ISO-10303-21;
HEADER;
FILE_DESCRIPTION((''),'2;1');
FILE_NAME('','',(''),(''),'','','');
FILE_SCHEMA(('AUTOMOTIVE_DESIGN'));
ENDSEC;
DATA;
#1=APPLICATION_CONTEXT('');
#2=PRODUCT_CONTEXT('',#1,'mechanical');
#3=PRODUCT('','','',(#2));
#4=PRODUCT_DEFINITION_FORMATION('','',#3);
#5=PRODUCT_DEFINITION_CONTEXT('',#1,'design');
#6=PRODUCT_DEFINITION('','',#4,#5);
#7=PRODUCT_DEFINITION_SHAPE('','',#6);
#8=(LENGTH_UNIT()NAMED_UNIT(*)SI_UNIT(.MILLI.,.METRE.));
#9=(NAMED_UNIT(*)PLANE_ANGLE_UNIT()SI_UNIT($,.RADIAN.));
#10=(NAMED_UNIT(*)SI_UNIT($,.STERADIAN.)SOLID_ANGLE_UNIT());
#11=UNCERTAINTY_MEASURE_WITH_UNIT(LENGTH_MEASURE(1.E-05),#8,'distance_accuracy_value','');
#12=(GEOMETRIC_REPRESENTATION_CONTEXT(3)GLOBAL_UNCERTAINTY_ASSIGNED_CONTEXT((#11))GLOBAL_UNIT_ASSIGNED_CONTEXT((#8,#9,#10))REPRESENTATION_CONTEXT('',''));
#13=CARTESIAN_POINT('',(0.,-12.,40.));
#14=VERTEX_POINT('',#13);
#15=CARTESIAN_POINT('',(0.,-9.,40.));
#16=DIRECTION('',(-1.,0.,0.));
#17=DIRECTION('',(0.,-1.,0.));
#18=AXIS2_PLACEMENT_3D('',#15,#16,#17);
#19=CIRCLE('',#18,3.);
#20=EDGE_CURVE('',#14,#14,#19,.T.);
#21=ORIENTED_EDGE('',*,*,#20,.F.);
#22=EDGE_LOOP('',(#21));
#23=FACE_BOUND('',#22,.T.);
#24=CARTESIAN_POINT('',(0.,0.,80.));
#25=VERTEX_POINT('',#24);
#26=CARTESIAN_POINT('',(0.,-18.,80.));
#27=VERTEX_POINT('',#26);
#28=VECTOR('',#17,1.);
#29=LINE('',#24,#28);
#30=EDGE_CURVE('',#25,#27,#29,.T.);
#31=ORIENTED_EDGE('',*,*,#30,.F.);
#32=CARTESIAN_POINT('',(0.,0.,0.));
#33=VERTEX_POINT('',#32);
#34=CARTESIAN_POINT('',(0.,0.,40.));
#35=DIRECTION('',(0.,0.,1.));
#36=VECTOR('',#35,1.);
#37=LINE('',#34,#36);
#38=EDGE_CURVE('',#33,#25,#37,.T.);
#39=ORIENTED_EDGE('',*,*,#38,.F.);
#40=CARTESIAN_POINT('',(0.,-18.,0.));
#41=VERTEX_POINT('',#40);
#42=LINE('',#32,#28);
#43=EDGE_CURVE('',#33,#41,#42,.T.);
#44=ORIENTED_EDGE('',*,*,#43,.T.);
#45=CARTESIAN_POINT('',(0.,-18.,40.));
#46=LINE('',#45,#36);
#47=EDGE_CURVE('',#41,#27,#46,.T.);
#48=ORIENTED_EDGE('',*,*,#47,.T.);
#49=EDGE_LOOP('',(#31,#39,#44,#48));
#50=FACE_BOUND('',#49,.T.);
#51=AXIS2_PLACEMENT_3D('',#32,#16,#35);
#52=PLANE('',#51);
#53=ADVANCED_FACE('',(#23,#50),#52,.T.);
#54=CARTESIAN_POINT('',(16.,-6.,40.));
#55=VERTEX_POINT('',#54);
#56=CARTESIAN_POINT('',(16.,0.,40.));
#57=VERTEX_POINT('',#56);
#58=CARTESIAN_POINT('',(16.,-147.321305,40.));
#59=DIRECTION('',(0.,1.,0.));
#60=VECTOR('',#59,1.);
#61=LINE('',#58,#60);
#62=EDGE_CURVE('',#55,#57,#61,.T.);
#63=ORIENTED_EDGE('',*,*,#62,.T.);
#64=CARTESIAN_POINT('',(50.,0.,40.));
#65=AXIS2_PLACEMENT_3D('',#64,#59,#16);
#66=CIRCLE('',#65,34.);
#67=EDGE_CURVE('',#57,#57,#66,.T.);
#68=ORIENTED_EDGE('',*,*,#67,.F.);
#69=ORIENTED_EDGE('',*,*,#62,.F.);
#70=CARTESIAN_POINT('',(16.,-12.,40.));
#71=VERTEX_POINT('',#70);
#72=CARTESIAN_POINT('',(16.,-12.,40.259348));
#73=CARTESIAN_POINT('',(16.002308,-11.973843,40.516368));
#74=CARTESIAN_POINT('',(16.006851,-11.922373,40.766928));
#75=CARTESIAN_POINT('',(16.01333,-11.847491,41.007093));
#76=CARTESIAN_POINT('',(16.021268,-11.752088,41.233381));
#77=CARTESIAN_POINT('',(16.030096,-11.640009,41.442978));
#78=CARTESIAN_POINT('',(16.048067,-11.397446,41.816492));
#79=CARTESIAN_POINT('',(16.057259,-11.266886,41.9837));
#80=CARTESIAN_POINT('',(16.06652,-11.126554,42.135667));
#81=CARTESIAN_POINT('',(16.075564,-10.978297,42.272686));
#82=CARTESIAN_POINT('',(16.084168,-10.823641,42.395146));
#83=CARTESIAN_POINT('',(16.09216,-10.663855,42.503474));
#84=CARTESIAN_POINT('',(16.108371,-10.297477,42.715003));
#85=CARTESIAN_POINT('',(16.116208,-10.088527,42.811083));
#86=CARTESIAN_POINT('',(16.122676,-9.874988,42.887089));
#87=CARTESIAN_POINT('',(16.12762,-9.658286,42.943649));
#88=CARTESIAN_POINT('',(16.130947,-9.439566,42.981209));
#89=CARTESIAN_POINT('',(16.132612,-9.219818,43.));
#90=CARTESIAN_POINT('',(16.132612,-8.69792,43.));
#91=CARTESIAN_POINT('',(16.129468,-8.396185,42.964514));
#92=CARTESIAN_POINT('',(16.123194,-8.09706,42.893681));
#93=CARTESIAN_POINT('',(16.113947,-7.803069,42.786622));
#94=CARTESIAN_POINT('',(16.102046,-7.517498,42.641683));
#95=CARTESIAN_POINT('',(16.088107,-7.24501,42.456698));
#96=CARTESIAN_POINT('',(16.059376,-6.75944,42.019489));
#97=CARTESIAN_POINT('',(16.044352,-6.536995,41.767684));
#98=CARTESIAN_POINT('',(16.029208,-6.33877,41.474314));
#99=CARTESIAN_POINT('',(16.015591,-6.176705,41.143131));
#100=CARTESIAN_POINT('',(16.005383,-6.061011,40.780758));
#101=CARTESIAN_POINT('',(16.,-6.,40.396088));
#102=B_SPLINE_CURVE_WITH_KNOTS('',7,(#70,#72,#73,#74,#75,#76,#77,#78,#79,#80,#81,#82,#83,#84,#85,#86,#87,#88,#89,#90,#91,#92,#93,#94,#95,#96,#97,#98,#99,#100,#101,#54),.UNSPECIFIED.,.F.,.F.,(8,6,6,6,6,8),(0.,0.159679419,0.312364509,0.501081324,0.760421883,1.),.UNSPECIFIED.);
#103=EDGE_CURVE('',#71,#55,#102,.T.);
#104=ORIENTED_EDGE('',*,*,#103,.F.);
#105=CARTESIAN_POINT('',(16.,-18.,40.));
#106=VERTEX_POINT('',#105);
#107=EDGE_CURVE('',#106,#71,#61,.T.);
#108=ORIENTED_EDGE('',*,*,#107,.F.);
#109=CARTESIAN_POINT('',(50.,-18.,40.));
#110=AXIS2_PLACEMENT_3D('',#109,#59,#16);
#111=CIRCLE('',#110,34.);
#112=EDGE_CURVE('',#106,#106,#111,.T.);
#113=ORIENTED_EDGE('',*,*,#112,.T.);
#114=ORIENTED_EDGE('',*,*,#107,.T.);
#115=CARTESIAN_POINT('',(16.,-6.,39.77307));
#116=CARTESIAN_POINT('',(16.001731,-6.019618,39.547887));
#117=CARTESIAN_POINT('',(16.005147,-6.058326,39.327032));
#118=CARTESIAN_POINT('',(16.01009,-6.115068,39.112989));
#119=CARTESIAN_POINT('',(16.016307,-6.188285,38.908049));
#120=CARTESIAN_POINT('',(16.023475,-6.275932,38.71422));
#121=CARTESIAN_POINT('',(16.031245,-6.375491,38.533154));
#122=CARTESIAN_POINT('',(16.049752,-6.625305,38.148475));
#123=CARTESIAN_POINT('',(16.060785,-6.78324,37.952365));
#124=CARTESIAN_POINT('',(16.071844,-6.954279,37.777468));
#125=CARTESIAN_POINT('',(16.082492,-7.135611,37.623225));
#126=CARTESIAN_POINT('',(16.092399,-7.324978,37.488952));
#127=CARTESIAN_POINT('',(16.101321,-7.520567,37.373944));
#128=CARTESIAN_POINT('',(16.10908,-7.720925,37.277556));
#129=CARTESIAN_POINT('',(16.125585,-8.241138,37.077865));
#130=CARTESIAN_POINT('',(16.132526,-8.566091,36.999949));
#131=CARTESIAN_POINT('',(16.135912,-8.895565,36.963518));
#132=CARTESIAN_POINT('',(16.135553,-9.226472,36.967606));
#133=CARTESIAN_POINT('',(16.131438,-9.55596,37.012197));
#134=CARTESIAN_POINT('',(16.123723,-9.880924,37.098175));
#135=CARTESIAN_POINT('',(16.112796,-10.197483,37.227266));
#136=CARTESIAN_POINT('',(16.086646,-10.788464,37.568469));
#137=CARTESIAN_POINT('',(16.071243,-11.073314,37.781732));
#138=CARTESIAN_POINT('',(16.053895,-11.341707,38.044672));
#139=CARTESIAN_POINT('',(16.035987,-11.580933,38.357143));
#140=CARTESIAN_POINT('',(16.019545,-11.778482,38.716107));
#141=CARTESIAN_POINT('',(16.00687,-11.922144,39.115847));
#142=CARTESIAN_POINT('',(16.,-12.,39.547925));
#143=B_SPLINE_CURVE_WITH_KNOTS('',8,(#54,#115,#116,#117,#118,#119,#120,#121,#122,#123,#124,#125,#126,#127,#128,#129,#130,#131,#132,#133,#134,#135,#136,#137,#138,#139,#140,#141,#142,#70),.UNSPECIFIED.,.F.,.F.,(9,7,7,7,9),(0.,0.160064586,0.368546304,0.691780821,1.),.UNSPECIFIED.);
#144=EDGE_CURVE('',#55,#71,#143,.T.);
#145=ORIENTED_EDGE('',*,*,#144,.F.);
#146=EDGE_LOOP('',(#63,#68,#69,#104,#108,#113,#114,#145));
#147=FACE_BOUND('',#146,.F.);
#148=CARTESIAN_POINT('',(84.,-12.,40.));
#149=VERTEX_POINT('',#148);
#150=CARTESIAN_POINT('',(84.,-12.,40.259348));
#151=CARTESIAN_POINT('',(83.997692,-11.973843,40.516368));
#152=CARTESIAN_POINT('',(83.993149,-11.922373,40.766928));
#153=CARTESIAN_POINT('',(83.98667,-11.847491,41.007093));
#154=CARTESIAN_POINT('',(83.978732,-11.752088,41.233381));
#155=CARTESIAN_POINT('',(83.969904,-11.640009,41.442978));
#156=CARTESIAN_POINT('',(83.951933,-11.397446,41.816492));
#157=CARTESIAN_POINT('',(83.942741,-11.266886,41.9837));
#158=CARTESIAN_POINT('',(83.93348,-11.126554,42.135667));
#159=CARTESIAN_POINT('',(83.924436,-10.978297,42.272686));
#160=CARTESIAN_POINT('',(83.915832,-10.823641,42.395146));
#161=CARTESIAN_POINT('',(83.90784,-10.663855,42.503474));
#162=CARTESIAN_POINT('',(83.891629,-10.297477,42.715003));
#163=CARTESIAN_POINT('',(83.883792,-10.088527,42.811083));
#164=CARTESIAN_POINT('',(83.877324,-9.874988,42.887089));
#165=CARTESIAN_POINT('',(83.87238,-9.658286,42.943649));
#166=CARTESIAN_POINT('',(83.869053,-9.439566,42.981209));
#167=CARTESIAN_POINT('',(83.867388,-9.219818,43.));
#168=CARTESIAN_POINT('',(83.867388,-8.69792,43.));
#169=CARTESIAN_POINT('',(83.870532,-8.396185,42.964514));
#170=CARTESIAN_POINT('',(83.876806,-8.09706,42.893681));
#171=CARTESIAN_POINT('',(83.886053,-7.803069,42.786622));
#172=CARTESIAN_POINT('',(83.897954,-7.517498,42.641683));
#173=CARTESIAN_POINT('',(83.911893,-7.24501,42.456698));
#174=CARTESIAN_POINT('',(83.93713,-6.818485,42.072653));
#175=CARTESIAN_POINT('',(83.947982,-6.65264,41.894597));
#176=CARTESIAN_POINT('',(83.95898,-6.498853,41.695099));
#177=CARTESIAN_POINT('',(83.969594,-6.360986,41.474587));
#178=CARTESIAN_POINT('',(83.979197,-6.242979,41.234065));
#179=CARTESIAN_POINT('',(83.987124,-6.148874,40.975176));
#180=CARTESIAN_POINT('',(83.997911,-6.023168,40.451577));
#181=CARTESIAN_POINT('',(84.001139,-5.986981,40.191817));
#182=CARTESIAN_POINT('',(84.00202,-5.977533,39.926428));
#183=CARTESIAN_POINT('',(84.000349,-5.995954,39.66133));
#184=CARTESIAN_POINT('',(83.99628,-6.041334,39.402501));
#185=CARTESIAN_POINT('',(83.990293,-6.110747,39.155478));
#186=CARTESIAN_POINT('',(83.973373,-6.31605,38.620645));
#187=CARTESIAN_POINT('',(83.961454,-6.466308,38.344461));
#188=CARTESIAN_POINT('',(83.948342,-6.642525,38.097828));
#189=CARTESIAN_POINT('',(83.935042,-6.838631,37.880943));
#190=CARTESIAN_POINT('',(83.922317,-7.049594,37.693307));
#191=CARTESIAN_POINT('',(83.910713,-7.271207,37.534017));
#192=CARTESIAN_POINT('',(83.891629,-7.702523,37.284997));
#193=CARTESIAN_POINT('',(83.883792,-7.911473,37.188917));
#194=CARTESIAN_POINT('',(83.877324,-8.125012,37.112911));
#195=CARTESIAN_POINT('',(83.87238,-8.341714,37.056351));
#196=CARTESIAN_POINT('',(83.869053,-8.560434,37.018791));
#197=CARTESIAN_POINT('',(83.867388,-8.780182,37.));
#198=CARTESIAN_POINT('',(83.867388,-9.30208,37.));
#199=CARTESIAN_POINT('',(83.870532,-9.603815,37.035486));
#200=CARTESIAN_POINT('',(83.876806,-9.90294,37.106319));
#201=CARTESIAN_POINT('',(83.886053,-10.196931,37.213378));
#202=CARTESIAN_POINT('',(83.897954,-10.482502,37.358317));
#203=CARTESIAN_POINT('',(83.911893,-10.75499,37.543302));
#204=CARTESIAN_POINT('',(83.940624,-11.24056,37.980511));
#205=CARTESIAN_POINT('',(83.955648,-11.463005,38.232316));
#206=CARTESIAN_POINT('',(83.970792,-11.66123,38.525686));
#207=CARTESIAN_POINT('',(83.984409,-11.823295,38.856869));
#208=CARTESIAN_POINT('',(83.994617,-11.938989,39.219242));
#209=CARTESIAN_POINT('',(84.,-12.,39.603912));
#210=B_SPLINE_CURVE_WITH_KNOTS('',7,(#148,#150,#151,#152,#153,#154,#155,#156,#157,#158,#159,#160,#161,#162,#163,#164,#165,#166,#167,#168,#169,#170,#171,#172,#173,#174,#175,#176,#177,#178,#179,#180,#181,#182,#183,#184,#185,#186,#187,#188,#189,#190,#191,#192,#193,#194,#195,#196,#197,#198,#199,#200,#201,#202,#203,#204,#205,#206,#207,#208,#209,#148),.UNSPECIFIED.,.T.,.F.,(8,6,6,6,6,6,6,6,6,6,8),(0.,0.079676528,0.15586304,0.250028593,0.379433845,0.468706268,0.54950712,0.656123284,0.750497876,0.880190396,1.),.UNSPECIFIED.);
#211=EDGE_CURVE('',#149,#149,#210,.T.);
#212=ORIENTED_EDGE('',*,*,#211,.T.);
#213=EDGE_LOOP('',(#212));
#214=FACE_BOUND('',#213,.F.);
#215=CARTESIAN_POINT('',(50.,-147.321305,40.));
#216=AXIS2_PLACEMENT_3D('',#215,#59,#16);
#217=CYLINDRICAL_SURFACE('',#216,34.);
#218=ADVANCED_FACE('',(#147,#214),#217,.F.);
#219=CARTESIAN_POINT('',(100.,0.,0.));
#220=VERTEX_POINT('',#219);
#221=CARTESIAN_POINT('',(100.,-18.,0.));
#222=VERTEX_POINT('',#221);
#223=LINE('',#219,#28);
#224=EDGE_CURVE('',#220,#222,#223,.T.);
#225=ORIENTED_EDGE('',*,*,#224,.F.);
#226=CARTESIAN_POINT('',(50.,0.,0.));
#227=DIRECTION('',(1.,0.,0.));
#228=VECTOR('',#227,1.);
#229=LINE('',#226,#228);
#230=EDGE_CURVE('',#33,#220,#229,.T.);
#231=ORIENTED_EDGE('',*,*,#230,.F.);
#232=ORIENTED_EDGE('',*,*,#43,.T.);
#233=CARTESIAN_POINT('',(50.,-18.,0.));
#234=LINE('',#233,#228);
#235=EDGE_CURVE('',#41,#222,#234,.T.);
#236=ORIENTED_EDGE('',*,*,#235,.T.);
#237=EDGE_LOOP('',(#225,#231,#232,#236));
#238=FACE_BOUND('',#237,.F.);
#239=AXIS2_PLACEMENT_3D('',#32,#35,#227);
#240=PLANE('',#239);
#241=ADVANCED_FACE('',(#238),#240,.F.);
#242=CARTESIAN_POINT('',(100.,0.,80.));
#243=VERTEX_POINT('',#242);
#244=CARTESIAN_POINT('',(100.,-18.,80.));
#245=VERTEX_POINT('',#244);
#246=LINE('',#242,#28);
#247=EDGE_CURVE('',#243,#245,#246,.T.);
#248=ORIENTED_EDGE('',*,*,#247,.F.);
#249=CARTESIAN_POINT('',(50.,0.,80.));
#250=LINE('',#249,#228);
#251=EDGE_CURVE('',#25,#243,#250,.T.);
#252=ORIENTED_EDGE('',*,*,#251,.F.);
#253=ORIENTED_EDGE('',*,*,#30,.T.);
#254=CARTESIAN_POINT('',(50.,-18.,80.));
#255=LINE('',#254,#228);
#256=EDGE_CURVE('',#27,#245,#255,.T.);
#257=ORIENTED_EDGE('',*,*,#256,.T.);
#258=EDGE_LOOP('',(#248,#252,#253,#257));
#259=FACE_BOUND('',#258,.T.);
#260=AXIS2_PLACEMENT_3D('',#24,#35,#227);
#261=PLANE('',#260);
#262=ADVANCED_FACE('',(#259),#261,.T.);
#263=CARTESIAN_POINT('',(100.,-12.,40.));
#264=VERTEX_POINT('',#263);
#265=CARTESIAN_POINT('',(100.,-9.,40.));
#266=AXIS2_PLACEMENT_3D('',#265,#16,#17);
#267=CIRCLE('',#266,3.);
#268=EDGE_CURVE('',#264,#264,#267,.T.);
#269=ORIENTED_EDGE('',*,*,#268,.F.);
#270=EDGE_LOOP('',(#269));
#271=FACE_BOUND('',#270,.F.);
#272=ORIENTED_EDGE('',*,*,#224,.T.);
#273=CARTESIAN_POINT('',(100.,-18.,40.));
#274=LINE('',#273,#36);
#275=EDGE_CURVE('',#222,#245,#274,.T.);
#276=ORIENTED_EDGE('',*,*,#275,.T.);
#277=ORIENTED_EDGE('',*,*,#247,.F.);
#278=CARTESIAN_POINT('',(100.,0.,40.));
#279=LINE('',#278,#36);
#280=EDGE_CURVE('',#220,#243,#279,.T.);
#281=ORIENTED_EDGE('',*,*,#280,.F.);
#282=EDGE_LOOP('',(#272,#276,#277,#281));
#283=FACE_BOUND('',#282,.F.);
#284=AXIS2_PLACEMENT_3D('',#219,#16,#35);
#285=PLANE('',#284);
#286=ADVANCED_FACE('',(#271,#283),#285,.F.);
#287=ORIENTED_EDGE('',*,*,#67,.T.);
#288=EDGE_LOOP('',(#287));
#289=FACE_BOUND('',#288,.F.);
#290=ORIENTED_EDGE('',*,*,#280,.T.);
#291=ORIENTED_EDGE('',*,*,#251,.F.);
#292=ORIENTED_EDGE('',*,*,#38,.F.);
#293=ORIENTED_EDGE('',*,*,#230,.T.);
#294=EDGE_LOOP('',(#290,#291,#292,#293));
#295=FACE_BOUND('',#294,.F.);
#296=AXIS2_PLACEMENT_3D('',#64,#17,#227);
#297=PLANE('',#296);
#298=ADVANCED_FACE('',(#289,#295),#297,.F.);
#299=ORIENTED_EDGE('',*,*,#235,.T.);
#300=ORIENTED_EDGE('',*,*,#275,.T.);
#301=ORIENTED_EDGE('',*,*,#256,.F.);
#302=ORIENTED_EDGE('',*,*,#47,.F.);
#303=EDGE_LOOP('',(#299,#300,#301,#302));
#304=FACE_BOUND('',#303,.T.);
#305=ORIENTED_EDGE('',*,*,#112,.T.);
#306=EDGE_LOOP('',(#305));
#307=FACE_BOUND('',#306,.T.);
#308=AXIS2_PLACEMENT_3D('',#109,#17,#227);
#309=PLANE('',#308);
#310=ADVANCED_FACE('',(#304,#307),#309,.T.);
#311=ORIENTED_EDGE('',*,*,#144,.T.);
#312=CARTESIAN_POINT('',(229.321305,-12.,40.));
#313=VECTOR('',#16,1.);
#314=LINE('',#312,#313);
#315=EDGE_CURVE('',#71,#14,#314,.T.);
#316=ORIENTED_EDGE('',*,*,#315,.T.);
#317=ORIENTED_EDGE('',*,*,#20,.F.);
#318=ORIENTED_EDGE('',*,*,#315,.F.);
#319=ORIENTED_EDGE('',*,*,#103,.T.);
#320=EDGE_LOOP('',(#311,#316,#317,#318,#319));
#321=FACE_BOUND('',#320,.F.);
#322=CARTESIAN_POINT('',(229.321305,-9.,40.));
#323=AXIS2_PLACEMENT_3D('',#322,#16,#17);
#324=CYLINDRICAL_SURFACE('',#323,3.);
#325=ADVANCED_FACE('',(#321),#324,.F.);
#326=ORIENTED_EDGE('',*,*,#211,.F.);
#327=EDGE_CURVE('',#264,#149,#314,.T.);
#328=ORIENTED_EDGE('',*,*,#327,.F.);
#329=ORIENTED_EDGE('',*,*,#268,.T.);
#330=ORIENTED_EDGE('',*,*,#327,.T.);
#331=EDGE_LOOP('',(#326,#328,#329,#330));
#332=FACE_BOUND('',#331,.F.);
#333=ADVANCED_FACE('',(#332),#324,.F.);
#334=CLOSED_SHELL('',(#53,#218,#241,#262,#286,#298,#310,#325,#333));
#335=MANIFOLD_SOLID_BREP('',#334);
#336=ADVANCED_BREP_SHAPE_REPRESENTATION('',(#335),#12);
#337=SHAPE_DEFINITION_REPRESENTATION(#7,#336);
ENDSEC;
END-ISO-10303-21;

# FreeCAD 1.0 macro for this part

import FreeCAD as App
import Part
import Sketcher
Q = App.Units.Quantity

doc = App.newDocument("Part")
body = doc.addObject("PartDesign::Body", "Body")

# Sketch on XZ plane
sketch1 = body.newObject("Sketcher::SketchObject", "Sketch")
sketch1.AttachmentSupport = (doc.getObject("XZ_Plane"), [""])
sketch1.MapMode = "FlatFace"
sketch1.addGeometry(Part.LineSegment(App.Vector(0, 80, 0), App.Vector(0, 0, 0)), False)
sketch1.addGeometry(Part.LineSegment(App.Vector(0, 0, 0), App.Vector(100, 0, 0)), False)
sketch1.addGeometry(Part.LineSegment(App.Vector(100, 0, 0), App.Vector(100, 80, 0)), False)
sketch1.addGeometry(Part.LineSegment(App.Vector(100, 80, 0), App.Vector(0, 80, 0)), False)
sketch1.addConstraint(Sketcher.Constraint("Coincident", 0, 2, 1, 1))
sketch1.addConstraint(Sketcher.Constraint("Coincident", 1, 2, 2, 1))
sketch1.addConstraint(Sketcher.Constraint("Coincident", 2, 2, 3, 1))
sketch1.addConstraint(Sketcher.Constraint("Coincident", 3, 2, 0, 1))
sketch1.addConstraint(Sketcher.Constraint("Vertical", 0))
sketch1.addConstraint(Sketcher.Constraint("Horizontal", 1))
sketch1.addConstraint(Sketcher.Constraint("Vertical", 2))
sketch1.addConstraint(Sketcher.Constraint("Horizontal", 3))
sketch1.addConstraint(Sketcher.Constraint("Coincident", 0, 2, -1, 1))
sketch1.addConstraint(Sketcher.Constraint("DistanceX", 1, 1, 1, 2, Q("100 mm")))
sketch1.addConstraint(Sketcher.Constraint("DistanceY", 0, 2, 0, 1, Q("80 mm")))
pad1 = body.newObject("PartDesign::Pad", "Pad")
pad1.Profile = sketch1
pad1.Length = 18

# Sketch on XZ plane
sketch2 = body.newObject("Sketcher::SketchObject", "Sketch001")
sketch2.AttachmentSupport = (doc.getObject("XZ_Plane"), [""])
sketch2.MapMode = "FlatFace"
sketch2.AttachmentOffset = App.Placement(App.Vector(0, 0, 18), App.Rotation())
sketch2.addGeometry(Part.Circle(App.Vector(50, 40, 0), App.Vector(0, 0, 1), 34), False)
sketch2.addConstraint(Sketcher.Constraint("Diameter", 0, Q("68 mm")))
sketch2.addConstraint(Sketcher.Constraint("DistanceX", -1, 1, 0, 3, Q("50 mm")))
sketch2.addConstraint(Sketcher.Constraint("DistanceY", -1, 1, 0, 3, Q("40 mm")))
doc.recompute()
hole = body.newObject("PartDesign::Hole", "Hole")
hole.Profile = sketch2
hole.ThreadType = "None"
hole.Diameter = 68
hole.DepthType = "ThroughAll"

# Sketch on YZ plane
sketch3 = body.newObject("Sketcher::SketchObject", "Sketch002")
sketch3.AttachmentSupport = (doc.getObject("YZ_Plane"), [""])
sketch3.MapMode = "FlatFace"
sketch3.AttachmentOffset = App.Placement(App.Vector(0, 0, 100), App.Rotation())
sketch3.addGeometry(Part.Circle(App.Vector(-9, 40, 0), App.Vector(0, 0, 1), 3), False)
sketch3.addConstraint(Sketcher.Constraint("Diameter", 0, Q("6 mm")))
sketch3.addConstraint(Sketcher.Constraint("DistanceX", 0, 3, -1, 1, Q("9 mm")))
sketch3.addConstraint(Sketcher.Constraint("DistanceY", -1, 1, 0, 3, Q("40 mm")))
doc.recompute()
hole2 = body.newObject("PartDesign::Hole", "Hole001")
hole2.Profile = sketch3
hole2.ThreadType = "None"
hole2.Diameter = 6
hole2.DepthType = "ThroughAll"

doc.recompute()
